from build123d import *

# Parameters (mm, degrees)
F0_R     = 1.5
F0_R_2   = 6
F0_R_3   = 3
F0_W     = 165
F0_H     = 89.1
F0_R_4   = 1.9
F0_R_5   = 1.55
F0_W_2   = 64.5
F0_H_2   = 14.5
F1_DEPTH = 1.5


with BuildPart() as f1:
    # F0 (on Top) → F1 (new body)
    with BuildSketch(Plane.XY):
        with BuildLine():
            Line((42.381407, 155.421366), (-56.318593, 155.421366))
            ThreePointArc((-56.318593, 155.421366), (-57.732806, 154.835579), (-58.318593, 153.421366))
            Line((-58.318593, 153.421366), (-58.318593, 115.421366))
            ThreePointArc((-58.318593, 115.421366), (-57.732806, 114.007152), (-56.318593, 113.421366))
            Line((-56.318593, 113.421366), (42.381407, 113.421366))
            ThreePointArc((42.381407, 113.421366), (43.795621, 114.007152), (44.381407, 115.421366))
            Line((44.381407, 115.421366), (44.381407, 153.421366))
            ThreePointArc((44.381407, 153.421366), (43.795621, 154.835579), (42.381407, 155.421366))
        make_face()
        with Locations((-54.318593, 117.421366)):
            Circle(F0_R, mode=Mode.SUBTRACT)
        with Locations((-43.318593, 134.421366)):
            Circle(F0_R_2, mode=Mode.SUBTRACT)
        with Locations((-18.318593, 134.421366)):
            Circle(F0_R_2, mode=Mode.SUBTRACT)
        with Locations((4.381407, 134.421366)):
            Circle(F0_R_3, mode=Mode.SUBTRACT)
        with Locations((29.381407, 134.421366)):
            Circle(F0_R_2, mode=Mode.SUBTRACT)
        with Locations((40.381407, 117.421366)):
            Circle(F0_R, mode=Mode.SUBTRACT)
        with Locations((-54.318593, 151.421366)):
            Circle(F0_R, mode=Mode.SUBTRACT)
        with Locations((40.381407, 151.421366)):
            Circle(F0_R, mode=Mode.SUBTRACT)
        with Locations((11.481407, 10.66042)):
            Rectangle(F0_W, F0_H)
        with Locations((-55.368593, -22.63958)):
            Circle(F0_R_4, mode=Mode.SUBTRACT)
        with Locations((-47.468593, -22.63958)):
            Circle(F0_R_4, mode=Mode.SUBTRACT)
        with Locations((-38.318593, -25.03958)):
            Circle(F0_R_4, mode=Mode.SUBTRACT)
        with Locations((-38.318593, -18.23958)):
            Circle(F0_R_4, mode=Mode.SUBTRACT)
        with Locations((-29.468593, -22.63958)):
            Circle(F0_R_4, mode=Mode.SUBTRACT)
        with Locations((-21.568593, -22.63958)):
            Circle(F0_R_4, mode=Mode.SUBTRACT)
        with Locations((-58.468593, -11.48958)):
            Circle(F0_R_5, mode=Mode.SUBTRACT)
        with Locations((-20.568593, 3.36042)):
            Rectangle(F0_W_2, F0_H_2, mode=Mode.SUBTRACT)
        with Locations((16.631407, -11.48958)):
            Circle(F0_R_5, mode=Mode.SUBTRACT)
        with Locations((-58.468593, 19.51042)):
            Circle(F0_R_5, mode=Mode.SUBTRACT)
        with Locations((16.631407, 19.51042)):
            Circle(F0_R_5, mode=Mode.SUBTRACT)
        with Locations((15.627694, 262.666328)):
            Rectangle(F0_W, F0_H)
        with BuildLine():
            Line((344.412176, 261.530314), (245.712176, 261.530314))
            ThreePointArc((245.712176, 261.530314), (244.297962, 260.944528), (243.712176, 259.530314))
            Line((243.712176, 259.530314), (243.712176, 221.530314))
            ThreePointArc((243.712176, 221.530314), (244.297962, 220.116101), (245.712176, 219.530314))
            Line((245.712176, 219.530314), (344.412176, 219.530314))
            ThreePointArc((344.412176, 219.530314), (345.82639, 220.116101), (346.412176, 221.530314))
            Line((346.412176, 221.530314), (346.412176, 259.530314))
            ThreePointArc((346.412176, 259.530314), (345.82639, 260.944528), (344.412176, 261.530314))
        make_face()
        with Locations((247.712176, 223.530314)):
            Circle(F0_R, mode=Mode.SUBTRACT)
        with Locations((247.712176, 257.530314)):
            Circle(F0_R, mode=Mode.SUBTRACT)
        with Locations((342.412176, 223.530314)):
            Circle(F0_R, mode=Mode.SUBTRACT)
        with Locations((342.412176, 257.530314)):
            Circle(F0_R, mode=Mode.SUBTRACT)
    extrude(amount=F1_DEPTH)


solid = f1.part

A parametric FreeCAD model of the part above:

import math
import FreeCAD as App
import Part
import Sketcher
from FreeCAD import Vector

doc = App.newDocument("Part")
body = doc.addObject("PartDesign::Body", "Body")
body.AllowCompound = True

# Sketch on XY plane
sketch1 = body.newObject("Sketcher::SketchObject", "Sketch")
sketch1.AttachmentSupport = (doc.getObject("XY_Plane"), [""])
sketch1.MapMode = "FlatFace"
sketch1.addGeometry([
    Part.LineSegment(Vector(42.381407, 155.421366, 0), Vector(-56.318593, 155.421366, 0)),  # 0
    Part.ArcOfCircle(Part.Circle(Vector(-56.318591, 153.421364, 0), Vector(0, 0, 1), 2.000002), math.radians(90.000055), math.radians(179.999945)),  # 1
    Part.LineSegment(Vector(-58.318593, 153.421366, 0), Vector(-58.318593, 115.421366, 0)),  # 2
    Part.ArcOfCircle(Part.Circle(Vector(-56.318593, 115.421366, 0), Vector(0, 0, 1), 2), math.radians(-179.999994), math.radians(-90.000006)),  # 3
    Part.LineSegment(Vector(-56.318593, 113.421366, 0), Vector(42.381407, 113.421366, 0)),  # 4
    Part.ArcOfCircle(Part.Circle(Vector(42.381408, 115.421365, 0), Vector(0, 0, 1), 1.999999), math.radians(-90.000043), math.radians(0.000043)),  # 5
    Part.LineSegment(Vector(44.381407, 115.421366, 0), Vector(44.381407, 153.421366, 0)),  # 6
    Part.ArcOfCircle(Part.Circle(Vector(42.381407, 153.421366, 0), Vector(0, 0, 1), 2), math.radians(0.000006), math.radians(89.999994)),  # 7
    Part.Circle(Vector(-54.318593, 117.421366, 0), Vector(0, 0, 1), 1.5),  # 8
    Part.Circle(Vector(40.381407, 117.421366, 0), Vector(0, 0, 1), 1.5),  # 9
    Part.Circle(Vector(-43.318593, 134.421366, 0), Vector(0, 0, 1), 6),  # 10
    Part.Circle(Vector(-18.318593, 134.421366, 0), Vector(0, 0, 1), 6),  # 11
    Part.Circle(Vector(-54.318593, 151.421366, 0), Vector(0, 0, 1), 1.5),  # 12
    Part.Circle(Vector(4.381407, 134.421366, 0), Vector(0, 0, 1), 3),  # 13
    Part.Circle(Vector(29.381407, 134.421366, 0), Vector(0, 0, 1), 6),  # 14
    Part.Circle(Vector(40.381407, 151.421366, 0), Vector(0, 0, 1), 1.5),  # 15
    Part.LineSegment(Vector(-71.018593, 55.21042, 0), Vector(-71.018593, -33.88958, 0)),  # 16
    Part.LineSegment(Vector(-71.018593, -33.88958, 0), Vector(93.981407, -33.88958, 0)),  # 17
    Part.LineSegment(Vector(93.981407, -33.88958, 0), Vector(93.981407, 55.21042, 0)),  # 18
    Part.LineSegment(Vector(93.981407, 55.21042, 0), Vector(-71.018593, 55.21042, 0)),  # 19
    Part.Circle(Vector(-55.368593, -22.63958, 0), Vector(0, 0, 1), 1.9),  # 20
    Part.Circle(Vector(-47.468593, -22.63958, 0), Vector(0, 0, 1), 1.9),  # 21
    Part.Circle(Vector(-38.318593, -25.03958, 0), Vector(0, 0, 1), 1.9),  # 22
    Part.Circle(Vector(-29.468593, -22.63958, 0), Vector(0, 0, 1), 1.9),  # 23
    Part.Circle(Vector(-21.568593, -22.63958, 0), Vector(0, 0, 1), 1.9),  # 24
    Part.Circle(Vector(-38.318593, -18.23958, 0), Vector(0, 0, 1), 1.9),  # 25
    Part.Circle(Vector(-58.468593, -11.48958, 0), Vector(0, 0, 1), 1.55),  # 26
    Part.Circle(Vector(16.631407, -11.48958, 0), Vector(0, 0, 1), 1.55),  # 27
    Part.Circle(Vector(-58.468593, 19.51042, 0), Vector(0, 0, 1), 1.55),  # 28
    Part.LineSegment(Vector(11.681407, -3.88958, 0), Vector(-52.818593, -3.88958, 0)),  # 29
    Part.LineSegment(Vector(-52.818593, -3.88958, 0), Vector(-52.818593, 10.61042, 0)),  # 30
    Part.LineSegment(Vector(-52.818593, 10.61042, 0), Vector(11.681407, 10.61042, 0)),  # 31
    Part.LineSegment(Vector(11.681407, 10.61042, 0), Vector(11.681407, -3.88958, 0)),  # 32
    Part.Circle(Vector(16.631407, 19.51042, 0), Vector(0, 0, 1), 1.55),  # 33
    Part.LineSegment(Vector(-66.872306, 307.216328, 0), Vector(-66.872306, 218.116328, 0)),  # 34
    Part.LineSegment(Vector(-66.872306, 218.116328, 0), Vector(98.127694, 218.116328, 0)),  # 35
    Part.LineSegment(Vector(98.127694, 218.116328, 0), Vector(98.127694, 307.216328, 0)),  # 36
    Part.LineSegment(Vector(98.127694, 307.216328, 0), Vector(-66.872306, 307.216328, 0)),  # 37
    Part.LineSegment(Vector(344.412176, 261.530314, 0), Vector(245.712176, 261.530314, 0)),  # 38
    Part.ArcOfCircle(Part.Circle(Vector(245.712175, 259.530315, 0), Vector(0, 0, 1), 1.999999), math.radians(89.999957), math.radians(180.000043)),  # 39
    Part.LineSegment(Vector(243.712176, 259.530314, 0), Vector(243.712176, 221.530314, 0)),  # 40
    Part.ArcOfCircle(Part.Circle(Vector(245.712176, 221.530314, 0), Vector(0, 0, 1), 2), math.radians(-179.999994), math.radians(-90.000006)),  # 41
    Part.LineSegment(Vector(245.712176, 219.530314, 0), Vector(344.412176, 219.530314, 0)),  # 42
    Part.ArcOfCircle(Part.Circle(Vector(344.412176, 221.530314, 0), Vector(0, 0, 1), 2), math.radians(-89.999994), math.radians(-0.000006)),  # 43
    Part.LineSegment(Vector(346.412176, 221.530314, 0), Vector(346.412176, 259.530314, 0)),  # 44
    Part.ArcOfCircle(Part.Circle(Vector(344.412177, 259.530315, 0), Vector(0, 0, 1), 1.999999), math.radians(-0.000043), math.radians(90.000043)),  # 45
    Part.Circle(Vector(247.712176, 223.530314, 0), Vector(0, 0, 1), 1.5),  # 46
    Part.Circle(Vector(342.412176, 223.530314, 0), Vector(0, 0, 1), 1.5),  # 47
    Part.Circle(Vector(247.712176, 257.530314, 0), Vector(0, 0, 1), 1.5),  # 48
    Part.Circle(Vector(342.412176, 257.530314, 0), Vector(0, 0, 1), 1.5),  # 49
], False)
sketch1.addConstraint([
    Sketcher.Constraint("Tangent", 0, 2, 1, 1),
    Sketcher.Constraint("Tangent", 1, 2, 2, 1),
    Sketcher.Constraint("Tangent", 2, 2, 3, 1),
    Sketcher.Constraint("Tangent", 3, 2, 4, 1),
    Sketcher.Constraint("Tangent", 4, 2, 5, 1),
    Sketcher.Constraint("Tangent", 5, 2, 6, 1),
    Sketcher.Constraint("Tangent", 6, 2, 7, 1),
    Sketcher.Constraint("Tangent", 7, 2, 0, 1),
    Sketcher.Constraint("Coincident", 16, 2, 17, 1),
    Sketcher.Constraint("Coincident", 17, 2, 18, 1),
    Sketcher.Constraint("Coincident", 18, 2, 19, 1),
    Sketcher.Constraint("Coincident", 19, 2, 16, 1),
    Sketcher.Constraint("Coincident", 29, 2, 30, 1),
    Sketcher.Constraint("Coincident", 30, 2, 31, 1),
    Sketcher.Constraint("Coincident", 31, 2, 32, 1),
    Sketcher.Constraint("Coincident", 32, 2, 29, 1),
    Sketcher.Constraint("Coincident", 34, 2, 35, 1),
    Sketcher.Constraint("Coincident", 35, 2, 36, 1),
    Sketcher.Constraint("Coincident", 36, 2, 37, 1),
    Sketcher.Constraint("Coincident", 37, 2, 34, 1),
    Sketcher.Constraint("Tangent", 38, 2, 39, 1),
    Sketcher.Constraint("Tangent", 39, 2, 40, 1),
    Sketcher.Constraint("Tangent", 40, 2, 41, 1),
    Sketcher.Constraint("Tangent", 41, 2, 42, 1),
    Sketcher.Constraint("Tangent", 42, 2, 43, 1),
    Sketcher.Constraint("Tangent", 43, 2, 44, 1),
    Sketcher.Constraint("Tangent", 44, 2, 45, 1),
    Sketcher.Constraint("Tangent", 45, 2, 38, 1),
    Sketcher.Constraint("Horizontal", 0),
    Sketcher.Constraint("Vertical", 2),
    Sketcher.Constraint("Horizontal", 4),
    Sketcher.Constraint("Vertical", 6),
    Sketcher.Constraint("Vertical", 16),
    Sketcher.Constraint("Horizontal", 17),
    Sketcher.Constraint("Vertical", 18),
    Sketcher.Constraint("Horizontal", 19),
    Sketcher.Constraint("Horizontal", 29),
    Sketcher.Constraint("Vertical", 30),
    Sketcher.Constraint("Horizontal", 31),
    Sketcher.Constraint("Vertical", 32),
    Sketcher.Constraint("Vertical", 34),
    Sketcher.Constraint("Horizontal", 35),
    Sketcher.Constraint("Vertical", 36),
    Sketcher.Constraint("Horizontal", 37),
    Sketcher.Constraint("Horizontal", 38),
    Sketcher.Constraint("Vertical", 40),
    Sketcher.Constraint("Horizontal", 42),
    Sketcher.Constraint("Vertical", 44),
    Sketcher.Constraint("Equal", 1, 3),
    Sketcher.Constraint("Equal", 3, 5),
    Sketcher.Constraint("Equal", 5, 7),
    Sketcher.Constraint("Equal", 8, 9),
    Sketcher.Constraint("Equal", 10, 11),
    Sketcher.Constraint("Equal", 9, 12),
    Sketcher.Constraint("Equal", 11, 14),
    Sketcher.Constraint("Equal", 12, 15),
    Sketcher.Constraint("Equal", 20, 21),
    Sketcher.Constraint("Equal", 21, 22),
    Sketcher.Constraint("Equal", 22, 23),
    Sketcher.Constraint("Equal", 23, 24),
    Sketcher.Constraint("Equal", 24, 25),
    Sketcher.Constraint("Equal", 26, 27),
    Sketcher.Constraint("Equal", 27, 28),
    Sketcher.Constraint("Equal", 28, 33),
    Sketcher.Constraint("Equal", 7, 39),
    Sketcher.Constraint("Equal", 39, 41),
    Sketcher.Constraint("Equal", 41, 43),
    Sketcher.Constraint("Equal", 43, 45),
    Sketcher.Constraint("Equal", 15, 46),
    Sketcher.Constraint("Equal", 46, 47),
    Sketcher.Constraint("Equal", 47, 48),
    Sketcher.Constraint("Equal", 48, 49),
    Sketcher.Constraint("Horizontal", 8, 3, 9, 3),
    Sketcher.Constraint("Horizontal", 10, 3, 11, 3),
    Sketcher.Constraint("Horizontal", 11, 3, 13, 3),
    Sketcher.Constraint("Horizontal", 13, 3, 14, 3),
    Sketcher.Constraint("Horizontal", 12, 3, 15, 3),
    Sketcher.Constraint("Horizontal", 20, 3, 21, 3),
    Sketcher.Constraint("Horizontal", 21, 3, 23, 3),
    Sketcher.Constraint("Horizontal", 23, 3, 24, 3),
    Sketcher.Constraint("Horizontal", 26, 3, 27, 3),
    Sketcher.Constraint("Horizontal", 28, 3, 33, 3),
    Sketcher.Constraint("Horizontal", 46, 3, 47, 3),
    Sketcher.Constraint("Horizontal", 48, 3, 49, 3),
    Sketcher.Constraint("Vertical", 8, 3, 12, 3),
    Sketcher.Constraint("Vertical", 9, 3, 15, 3),
    Sketcher.Constraint("Vertical", 22, 3, 25, 3),
    Sketcher.Constraint("Vertical", 26, 3, 28, 3),
    Sketcher.Constraint("Vertical", 27, 3, 33, 3),
    Sketcher.Constraint("Vertical", 46, 3, 48, 3),
    Sketcher.Constraint("Vertical", 47, 3, 49, 3),
    Sketcher.Constraint("Equal", 19, 35),
    Sketcher.Constraint("Equal", 4, 38),
    Sketcher.Constraint("Equal", 18, 34),
    Sketcher.Constraint("Equal", 6, 40),
    Sketcher.Constraint("Diameter", 8, 3.0),
    Sketcher.Constraint("Diameter", 10, 12.0),
    Sketcher.Constraint("Diameter", 13, 6.0),
    Sketcher.Constraint("Radius", 1, 2.000002),
    Sketcher.Constraint("Diameter", 20, 3.8),
    Sketcher.Constraint("Diameter", 26, 3.1),
    Sketcher.Constraint("DistanceX", 17, 1, 17, 2, 165.0),
    Sketcher.Constraint("DistanceY", 2, 2, 2, 1, 38.0),
    Sketcher.Constraint("DistanceX", 0, 2, 0, 1, 98.7),
    Sketcher.Constraint("DistanceX", 29, 2, 29, 1, 64.5),
    Sketcher.Constraint("DistanceY", 16, 2, 16, 1, 89.1),
    Sketcher.Constraint("DistanceY", 30, 1, 30, 2, 14.5),
    Sketcher.Constraint("DistanceX", 3, 3, 8, 3, 2.0),
    Sketcher.Constraint("DistanceY", 3, 3, 8, 3, 2.0),
    Sketcher.Constraint("DistanceX", 9, 3, 5, 3, 2.000001),
    Sketcher.Constraint("DistanceX", 8, 3, 10, 3, 11.0),
    Sketcher.Constraint("DistanceY", 8, 3, 10, 3, 17.0),
    Sketcher.Constraint("DistanceX", 10, 3, 11, 3, 25.0),
    Sketcher.Constraint("DistanceY", 12, 3, 1, 3, 1.999998),
    Sketcher.Constraint("DistanceX", 13, 3, 9, 3, 36.0),
    Sketcher.Constraint("DistanceX", 14, 3, 9, 3, 11.0),
    Sketcher.Constraint("DistanceX", 3, 3, 22, 3, 18.0),
    Sketcher.Constraint("DistanceX", 21, 3, 23, 3, 18.0),
    Sketcher.Constraint("DistanceX", 26, 3, 21, 3, 11.0),
    Sketcher.Constraint("DistanceY", 26, 3, 28, 3, 31.0),
    Sketcher.Constraint("DistanceX", 41, 3, 46, 3, 2.0),
    Sketcher.Constraint("DistanceY", 41, 3, 46, 3, 2.0),
    Sketcher.Constraint("DistanceX", 47, 3, 43, 3, 2.0),
    Sketcher.Constraint("DistanceY", 48, 3, 39, 3, 2.000001),
    Sketcher.Constraint("DistanceX", 25, 3, 31, 2, 50.0),
    Sketcher.Constraint("DistanceX", 20, 3, 21, 3, 7.9),
    Sketcher.Constraint("DistanceY", 22, 3, 21, 3, 2.4),
    Sketcher.Constraint("DistanceX", 23, 3, 24, 3, 7.9),
    Sketcher.Constraint("DistanceY", 22, 3, 25, 3, 6.8),
    Sketcher.Constraint("DistanceX", 24, 3, 27, 3, 38.2),
    Sketcher.Constraint("DistanceY", 16, 2, 26, 3, 22.4),
    Sketcher.Constraint("DistanceX", 16, 2, 22, 3, 32.7),
    Sketcher.Constraint("DistanceY", 26, 3, 29, 2, 7.6),
    Sketcher.Constraint("DistanceX", 3, 3, 20, 3, 0.95),
    Sketcher.Constraint("DistanceY", 20, 3, 26, 3, 11.15),
    Sketcher.Constraint("DistanceX", 1, 3, -1, 1, 56.318591),
    Sketcher.Constraint("DistanceY", 20, 3, -1, 1, 22.63958),
    Sketcher.Constraint("DistanceY", -1, 1, 34, 2, 218.116328),
    Sketcher.Constraint("DistanceY", 7, 3, 39, 3, 106.10895),
    Sketcher.Constraint("DistanceX", 7, 3, 41, 3, 203.330769),
    Sketcher.Constraint("DistanceX", 36, 2, 39, 3, 147.584481),
    Sketcher.Constraint("DistanceY", 7, 2, 36, 2, 151.794962),
])
pad1 = body.newObject("PartDesign::Pad", "Pad")
pad1.Profile = sketch1
pad1.Length = 1.5

doc.recompute()
